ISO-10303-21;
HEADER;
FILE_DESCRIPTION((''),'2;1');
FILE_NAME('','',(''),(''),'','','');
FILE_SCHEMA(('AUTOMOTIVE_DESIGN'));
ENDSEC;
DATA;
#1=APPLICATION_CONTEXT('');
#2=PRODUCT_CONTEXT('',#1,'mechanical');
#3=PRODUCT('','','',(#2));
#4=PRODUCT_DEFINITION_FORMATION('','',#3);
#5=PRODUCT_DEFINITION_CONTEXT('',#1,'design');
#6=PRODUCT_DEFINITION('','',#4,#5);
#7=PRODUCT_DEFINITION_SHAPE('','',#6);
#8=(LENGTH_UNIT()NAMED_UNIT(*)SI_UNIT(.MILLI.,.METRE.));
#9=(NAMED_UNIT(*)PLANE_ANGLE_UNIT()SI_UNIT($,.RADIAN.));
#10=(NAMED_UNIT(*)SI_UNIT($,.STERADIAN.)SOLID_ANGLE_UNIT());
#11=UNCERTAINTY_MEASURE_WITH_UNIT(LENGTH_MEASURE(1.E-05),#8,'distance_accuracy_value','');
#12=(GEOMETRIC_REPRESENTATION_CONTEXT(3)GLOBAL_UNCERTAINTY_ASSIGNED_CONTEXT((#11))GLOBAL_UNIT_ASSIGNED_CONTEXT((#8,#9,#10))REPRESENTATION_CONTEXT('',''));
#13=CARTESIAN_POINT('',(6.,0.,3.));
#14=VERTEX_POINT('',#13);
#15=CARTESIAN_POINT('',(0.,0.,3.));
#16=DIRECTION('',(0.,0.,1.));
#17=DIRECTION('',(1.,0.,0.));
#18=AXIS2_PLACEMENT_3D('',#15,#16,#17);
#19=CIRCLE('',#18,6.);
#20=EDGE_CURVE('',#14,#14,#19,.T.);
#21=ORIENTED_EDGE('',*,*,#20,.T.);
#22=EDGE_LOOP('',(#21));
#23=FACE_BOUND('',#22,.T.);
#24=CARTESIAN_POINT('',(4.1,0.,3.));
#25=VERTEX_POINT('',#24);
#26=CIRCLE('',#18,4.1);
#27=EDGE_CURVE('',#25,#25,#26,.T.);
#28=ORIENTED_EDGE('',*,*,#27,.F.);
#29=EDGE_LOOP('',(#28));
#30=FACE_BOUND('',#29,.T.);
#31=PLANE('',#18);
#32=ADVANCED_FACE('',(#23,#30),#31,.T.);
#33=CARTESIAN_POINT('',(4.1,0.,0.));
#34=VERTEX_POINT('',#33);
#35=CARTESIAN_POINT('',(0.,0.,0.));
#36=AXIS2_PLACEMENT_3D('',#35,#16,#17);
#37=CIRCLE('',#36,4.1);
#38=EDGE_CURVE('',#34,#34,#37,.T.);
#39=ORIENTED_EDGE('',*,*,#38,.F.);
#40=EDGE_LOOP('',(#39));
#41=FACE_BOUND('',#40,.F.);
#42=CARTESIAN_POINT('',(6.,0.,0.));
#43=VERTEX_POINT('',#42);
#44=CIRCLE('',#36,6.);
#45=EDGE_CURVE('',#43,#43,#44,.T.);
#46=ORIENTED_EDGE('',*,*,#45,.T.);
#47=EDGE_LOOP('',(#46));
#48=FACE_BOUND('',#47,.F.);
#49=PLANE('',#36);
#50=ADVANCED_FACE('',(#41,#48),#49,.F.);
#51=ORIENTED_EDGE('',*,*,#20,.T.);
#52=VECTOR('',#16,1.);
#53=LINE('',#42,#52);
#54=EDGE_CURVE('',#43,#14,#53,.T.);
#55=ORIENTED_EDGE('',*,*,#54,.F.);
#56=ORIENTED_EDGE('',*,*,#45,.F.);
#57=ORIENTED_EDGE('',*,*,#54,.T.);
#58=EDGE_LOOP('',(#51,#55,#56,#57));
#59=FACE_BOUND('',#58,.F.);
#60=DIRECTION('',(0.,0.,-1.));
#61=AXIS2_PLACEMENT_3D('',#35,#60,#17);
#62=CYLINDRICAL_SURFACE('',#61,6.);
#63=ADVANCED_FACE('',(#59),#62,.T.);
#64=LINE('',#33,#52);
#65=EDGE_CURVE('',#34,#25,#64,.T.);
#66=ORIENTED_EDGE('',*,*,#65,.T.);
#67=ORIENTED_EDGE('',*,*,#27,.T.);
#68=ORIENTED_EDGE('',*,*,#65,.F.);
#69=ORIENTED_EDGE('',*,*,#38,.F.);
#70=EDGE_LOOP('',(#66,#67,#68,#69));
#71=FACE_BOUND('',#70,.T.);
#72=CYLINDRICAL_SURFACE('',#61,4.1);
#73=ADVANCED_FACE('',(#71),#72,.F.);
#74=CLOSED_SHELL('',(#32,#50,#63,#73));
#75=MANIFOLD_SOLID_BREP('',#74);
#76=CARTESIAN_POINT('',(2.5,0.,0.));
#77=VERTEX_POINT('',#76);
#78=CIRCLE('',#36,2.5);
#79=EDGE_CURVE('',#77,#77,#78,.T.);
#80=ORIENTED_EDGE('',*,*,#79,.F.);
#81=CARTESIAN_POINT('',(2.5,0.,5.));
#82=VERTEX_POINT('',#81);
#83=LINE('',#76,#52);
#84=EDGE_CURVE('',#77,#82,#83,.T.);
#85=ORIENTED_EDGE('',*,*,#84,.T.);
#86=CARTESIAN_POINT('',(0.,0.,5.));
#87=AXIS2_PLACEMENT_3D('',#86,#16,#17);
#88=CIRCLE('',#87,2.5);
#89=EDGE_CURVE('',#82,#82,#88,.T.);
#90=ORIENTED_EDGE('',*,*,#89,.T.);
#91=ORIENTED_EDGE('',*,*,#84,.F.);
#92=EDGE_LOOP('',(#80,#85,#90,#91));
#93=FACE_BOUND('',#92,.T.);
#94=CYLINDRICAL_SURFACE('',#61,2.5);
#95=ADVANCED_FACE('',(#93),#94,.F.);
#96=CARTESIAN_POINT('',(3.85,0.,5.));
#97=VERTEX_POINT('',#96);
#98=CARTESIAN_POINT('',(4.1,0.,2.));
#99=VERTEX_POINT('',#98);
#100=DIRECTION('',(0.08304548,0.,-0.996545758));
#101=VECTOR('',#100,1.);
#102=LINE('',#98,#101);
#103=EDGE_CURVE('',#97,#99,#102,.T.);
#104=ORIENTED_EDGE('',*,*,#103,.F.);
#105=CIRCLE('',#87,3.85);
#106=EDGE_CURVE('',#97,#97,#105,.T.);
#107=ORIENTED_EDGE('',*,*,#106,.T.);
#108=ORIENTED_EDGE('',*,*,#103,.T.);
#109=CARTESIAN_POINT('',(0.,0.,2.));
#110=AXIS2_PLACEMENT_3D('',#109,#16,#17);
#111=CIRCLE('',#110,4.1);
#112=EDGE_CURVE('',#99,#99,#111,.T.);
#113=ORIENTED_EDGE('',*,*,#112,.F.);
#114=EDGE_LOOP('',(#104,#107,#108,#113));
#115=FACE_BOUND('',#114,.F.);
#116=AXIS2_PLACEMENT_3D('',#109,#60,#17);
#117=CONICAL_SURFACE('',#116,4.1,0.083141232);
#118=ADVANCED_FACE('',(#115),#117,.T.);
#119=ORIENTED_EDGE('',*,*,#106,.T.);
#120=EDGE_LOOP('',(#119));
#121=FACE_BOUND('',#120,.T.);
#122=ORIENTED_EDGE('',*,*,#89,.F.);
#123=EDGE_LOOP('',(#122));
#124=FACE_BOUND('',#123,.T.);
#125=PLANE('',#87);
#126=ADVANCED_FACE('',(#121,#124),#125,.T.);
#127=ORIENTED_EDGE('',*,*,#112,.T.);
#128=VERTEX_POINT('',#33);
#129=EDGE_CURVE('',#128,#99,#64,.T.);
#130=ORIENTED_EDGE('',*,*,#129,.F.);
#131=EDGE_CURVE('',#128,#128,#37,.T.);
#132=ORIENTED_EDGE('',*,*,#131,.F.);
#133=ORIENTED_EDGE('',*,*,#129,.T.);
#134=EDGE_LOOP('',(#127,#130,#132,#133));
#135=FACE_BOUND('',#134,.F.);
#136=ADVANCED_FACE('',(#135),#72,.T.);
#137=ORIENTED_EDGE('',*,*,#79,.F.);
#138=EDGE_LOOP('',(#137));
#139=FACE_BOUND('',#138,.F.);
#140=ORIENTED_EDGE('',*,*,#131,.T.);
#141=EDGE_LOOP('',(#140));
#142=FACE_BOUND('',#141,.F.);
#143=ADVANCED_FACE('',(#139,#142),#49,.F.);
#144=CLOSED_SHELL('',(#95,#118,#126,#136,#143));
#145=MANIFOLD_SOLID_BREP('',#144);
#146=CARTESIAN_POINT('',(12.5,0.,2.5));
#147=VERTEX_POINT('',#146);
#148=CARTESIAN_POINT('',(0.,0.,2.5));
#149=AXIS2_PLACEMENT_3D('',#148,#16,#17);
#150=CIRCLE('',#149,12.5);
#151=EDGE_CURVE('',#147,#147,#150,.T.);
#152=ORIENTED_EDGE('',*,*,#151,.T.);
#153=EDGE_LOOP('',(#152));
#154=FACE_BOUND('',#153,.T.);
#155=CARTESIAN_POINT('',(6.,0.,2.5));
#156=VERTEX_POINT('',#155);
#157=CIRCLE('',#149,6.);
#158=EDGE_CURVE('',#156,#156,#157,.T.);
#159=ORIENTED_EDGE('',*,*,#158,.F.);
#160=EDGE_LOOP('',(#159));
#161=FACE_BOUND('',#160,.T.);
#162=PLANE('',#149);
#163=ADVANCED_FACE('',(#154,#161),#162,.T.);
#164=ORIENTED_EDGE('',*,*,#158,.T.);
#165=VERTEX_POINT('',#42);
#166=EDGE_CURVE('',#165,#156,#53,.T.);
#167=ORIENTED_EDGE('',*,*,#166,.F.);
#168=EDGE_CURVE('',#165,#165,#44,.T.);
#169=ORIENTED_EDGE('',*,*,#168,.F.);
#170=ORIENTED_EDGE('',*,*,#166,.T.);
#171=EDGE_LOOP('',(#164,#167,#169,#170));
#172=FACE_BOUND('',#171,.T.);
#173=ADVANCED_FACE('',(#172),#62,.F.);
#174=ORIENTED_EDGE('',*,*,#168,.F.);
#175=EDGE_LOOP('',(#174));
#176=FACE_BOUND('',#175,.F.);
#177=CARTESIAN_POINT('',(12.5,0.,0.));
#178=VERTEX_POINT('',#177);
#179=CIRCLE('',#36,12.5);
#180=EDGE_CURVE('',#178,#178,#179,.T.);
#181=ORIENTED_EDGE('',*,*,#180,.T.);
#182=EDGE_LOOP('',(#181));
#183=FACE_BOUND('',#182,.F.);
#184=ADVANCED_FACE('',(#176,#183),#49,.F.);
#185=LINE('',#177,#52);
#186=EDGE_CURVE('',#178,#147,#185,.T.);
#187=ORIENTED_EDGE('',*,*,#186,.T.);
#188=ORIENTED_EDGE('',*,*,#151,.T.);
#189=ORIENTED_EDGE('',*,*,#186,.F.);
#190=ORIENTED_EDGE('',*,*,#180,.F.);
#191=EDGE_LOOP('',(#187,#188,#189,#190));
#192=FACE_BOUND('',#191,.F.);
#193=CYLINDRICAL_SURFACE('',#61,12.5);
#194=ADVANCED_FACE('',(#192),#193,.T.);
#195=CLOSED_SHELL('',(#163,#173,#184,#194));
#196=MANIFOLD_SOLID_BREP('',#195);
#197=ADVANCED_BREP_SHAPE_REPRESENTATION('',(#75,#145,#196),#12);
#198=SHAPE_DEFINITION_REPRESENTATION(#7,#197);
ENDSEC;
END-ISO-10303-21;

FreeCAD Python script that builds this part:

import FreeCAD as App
import Part
import Sketcher
from FreeCAD import Vector
Q = App.Units.Quantity


def edges_at(feature, points):
    """Names of the edges that pass closest to the given points."""
    edges = feature.Shape.Edges
    near = lambda p: min(range(len(edges)), key=lambda i: edges[i].distToShape(Part.Vertex(*p))[0])
    return sorted({f"Edge{near(p) + 1}" for p in points})

doc = App.newDocument("Part")
body = doc.addObject("PartDesign::Body", "Body")

# Sketch on XY plane
sketch1 = body.newObject("Sketcher::SketchObject", "Sketch")
sketch1.AttachmentSupport = (doc.getObject("XY_Plane"), [""])
sketch1.MapMode = "FlatFace"
sketch1.addGeometry([
    Part.Circle(Vector(0, 0, 0), Vector(0, 0, 1), 4.1),
    Part.Circle(Vector(0, 0, 0), Vector(0, 0, 1), 2.5),
], False)
sketch1.addConstraint([
    Sketcher.Constraint("Coincident", 0, 3, -1, 1),
    Sketcher.Constraint("Coincident", 1, 3, -1, 1),
    Sketcher.Constraint("Diameter", 1, Q("5 mm")),
    Sketcher.Constraint("Diameter", 0, Q("8.2 mm")),
])
pad1 = body.newObject("PartDesign::Pad", "Pad")
pad1.Profile = sketch1
pad1.Length = 5
doc.recompute()

chamfer = body.newObject("PartDesign::Chamfer", "Chamfer")
chamfer.Base = (pad1, edges_at(pad1, [(-4.1, 0, 5)]))
chamfer.ChamferType = "Two distances"
chamfer.Size = 0.25
chamfer.Size2 = 3
chamfer.FlipDirection = True
body2 = doc.addObject("PartDesign::Body", "Body001")

# Sketch on XY plane
sketch2 = body2.newObject("Sketcher::SketchObject", "Sketch001")
sketch2.AttachmentSupport = (doc.getObject("XY_Plane001"), [""])
sketch2.MapMode = "FlatFace"
sketch2.addGeometry([
    Part.Circle(Vector(0, 0, 0), Vector(0, 0, 1), 12),
    Part.Circle(Vector(0, 0, 0), Vector(0, 0, 1), 6),
], False)
sketch2.addConstraint([
    Sketcher.Constraint("Coincident", 0, 3, -1, 1),
    Sketcher.Constraint("Coincident", 1, 3, -1, 1),
    Sketcher.Constraint("Diameter", 0, Q("25 mm")),
    Sketcher.Constraint("Diameter", 1, Q("12 mm")),
])
pad2 = body2.newObject("PartDesign::Pad", "Pad001")
pad2.Profile = sketch2
pad2.Length = 2.5
body3 = doc.addObject("PartDesign::Body", "Body002")

# Sketch on XY plane
sketch3 = body3.newObject("Sketcher::SketchObject", "Sketch002")
sketch3.AttachmentSupport = (doc.getObject("XY_Plane002"), [""])
sketch3.MapMode = "FlatFace"
sketch3.addGeometry([
    Part.Circle(Vector(0, 0, 0), Vector(0, 0, 1), 6),
    Part.Circle(Vector(0, 0, 0), Vector(0, 0, 1), 4.1),
], False)
sketch3.addConstraint([
    Sketcher.Constraint("Coincident", 0, 3, -1, 1),
    Sketcher.Constraint("Coincident", 1, 3, -1, 1),
    Sketcher.Constraint("Diameter", 0, Q("12 mm")),
    Sketcher.Constraint("Diameter", 1, Q("8.2 mm")),
])
pad3 = body3.newObject("PartDesign::Pad", "Pad002")
pad3.Profile = sketch3
pad3.Length = 3

doc.recompute()
